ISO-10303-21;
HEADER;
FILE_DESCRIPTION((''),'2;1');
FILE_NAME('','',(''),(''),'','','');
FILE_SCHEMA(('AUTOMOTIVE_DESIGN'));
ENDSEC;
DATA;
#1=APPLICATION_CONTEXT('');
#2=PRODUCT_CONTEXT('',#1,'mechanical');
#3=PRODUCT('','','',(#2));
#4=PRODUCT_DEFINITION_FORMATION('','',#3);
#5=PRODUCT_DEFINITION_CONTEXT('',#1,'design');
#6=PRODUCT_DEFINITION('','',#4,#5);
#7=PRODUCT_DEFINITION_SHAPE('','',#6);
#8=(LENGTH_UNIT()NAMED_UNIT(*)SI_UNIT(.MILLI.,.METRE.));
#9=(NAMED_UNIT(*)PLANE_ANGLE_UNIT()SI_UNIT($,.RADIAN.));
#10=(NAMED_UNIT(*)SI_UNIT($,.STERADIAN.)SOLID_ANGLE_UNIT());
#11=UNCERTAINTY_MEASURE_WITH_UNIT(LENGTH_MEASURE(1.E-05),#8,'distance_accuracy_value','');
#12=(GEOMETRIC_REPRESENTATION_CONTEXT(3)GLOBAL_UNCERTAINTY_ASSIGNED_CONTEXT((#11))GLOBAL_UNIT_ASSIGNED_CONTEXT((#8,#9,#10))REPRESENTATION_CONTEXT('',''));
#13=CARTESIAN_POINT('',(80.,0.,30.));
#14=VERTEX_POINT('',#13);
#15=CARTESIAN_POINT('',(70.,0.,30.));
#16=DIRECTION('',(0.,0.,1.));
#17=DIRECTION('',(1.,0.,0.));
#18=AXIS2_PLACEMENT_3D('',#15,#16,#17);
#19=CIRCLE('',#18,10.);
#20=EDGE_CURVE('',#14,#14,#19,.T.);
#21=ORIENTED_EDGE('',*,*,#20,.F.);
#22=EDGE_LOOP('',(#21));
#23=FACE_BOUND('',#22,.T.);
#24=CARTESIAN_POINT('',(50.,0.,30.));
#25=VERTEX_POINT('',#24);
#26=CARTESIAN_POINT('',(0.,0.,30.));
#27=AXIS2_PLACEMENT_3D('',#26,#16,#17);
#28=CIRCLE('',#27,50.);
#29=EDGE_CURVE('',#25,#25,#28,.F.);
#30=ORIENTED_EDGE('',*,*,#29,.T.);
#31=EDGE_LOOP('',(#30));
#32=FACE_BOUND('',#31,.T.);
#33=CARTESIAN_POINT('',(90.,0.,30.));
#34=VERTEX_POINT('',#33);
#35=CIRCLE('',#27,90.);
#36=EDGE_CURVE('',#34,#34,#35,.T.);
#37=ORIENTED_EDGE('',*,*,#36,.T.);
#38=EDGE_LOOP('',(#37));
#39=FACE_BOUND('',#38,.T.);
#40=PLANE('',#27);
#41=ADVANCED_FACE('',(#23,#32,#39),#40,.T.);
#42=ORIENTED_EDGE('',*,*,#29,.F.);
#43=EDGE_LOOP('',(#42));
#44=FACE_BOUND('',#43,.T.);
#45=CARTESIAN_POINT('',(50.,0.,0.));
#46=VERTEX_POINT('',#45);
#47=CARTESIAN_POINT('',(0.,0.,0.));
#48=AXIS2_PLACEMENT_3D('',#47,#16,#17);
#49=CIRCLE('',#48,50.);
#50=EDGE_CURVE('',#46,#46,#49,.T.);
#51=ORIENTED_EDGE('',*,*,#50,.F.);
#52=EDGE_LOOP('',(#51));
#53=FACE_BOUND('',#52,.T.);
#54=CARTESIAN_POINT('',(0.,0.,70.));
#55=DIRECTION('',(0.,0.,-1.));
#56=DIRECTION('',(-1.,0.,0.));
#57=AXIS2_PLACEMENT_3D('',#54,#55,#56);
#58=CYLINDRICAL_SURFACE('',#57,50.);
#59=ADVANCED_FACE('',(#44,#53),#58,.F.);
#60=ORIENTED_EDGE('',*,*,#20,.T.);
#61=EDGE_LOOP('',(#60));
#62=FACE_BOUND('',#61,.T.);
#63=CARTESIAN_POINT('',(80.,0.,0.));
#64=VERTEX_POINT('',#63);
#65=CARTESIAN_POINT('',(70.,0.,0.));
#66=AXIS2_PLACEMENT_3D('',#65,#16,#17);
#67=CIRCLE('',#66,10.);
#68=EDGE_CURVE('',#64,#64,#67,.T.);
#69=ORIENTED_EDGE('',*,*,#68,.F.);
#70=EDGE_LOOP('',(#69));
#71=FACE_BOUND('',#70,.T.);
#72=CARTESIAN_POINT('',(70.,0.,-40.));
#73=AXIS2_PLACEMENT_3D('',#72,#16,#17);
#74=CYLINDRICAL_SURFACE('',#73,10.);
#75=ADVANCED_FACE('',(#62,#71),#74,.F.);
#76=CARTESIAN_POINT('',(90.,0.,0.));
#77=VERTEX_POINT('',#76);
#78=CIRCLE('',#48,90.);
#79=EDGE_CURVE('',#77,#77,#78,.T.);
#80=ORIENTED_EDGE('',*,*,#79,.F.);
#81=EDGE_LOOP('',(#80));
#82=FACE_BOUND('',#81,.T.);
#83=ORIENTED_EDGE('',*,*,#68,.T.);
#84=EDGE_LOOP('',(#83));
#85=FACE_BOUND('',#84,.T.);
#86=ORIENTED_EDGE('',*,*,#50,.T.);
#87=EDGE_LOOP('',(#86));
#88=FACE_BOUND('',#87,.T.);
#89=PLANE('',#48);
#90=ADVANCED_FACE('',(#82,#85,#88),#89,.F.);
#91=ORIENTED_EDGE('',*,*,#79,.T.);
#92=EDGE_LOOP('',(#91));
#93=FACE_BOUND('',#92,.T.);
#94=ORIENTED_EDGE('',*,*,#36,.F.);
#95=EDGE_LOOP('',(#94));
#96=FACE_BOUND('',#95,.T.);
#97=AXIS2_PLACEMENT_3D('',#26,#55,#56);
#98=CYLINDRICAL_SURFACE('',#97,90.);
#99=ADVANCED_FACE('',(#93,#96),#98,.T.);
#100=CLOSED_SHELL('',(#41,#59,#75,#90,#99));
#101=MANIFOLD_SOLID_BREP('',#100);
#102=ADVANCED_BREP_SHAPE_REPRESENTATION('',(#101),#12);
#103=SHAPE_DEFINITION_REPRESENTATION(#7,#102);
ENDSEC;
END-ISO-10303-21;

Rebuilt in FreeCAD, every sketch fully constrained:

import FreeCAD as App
import Part
import Sketcher

V = App.Vector

doc = App.newDocument("Part")
params = doc.addObject("Spreadsheet::Sheet", "Params")
for row, (alias, value) in enumerate([
    ("sketch1_diameter", "180 mm"),
    ("pad1_length", "30 mm"),
    ("sketch2_diameter", "100 mm"),
    ("pocket1_length", "70 mm"),
    ("sketch3_diameter", "20 mm"),
    ("pocket2_length", "70 mm"),
], start=1):
    params.set(f"A{row}", alias)
    params.set(f"B{row}", "=" + value)
    params.setAlias(f"B{row}", alias)

body = doc.addObject("PartDesign::Body", "Body")

# Sketch on XY plane
sketch1 = body.newObject("Sketcher::SketchObject", "Sketch")
sketch1.AttachmentSupport = (doc.getObject("XY_Plane"), [""])
sketch1.MapMode = "FlatFace"
sketch1.addGeometry(Part.Circle(V(0, 0, 0), V(0, 0, 1), 90), False)
sketch1.addConstraint([
    Sketcher.Constraint("Coincident", 0, 3, -1, 1),
    Sketcher.Constraint("Diameter", 0, 180.0),
])
sketch1.setExpression("Constraints[1]", "Params.sketch1_diameter")
pad1 = body.newObject("PartDesign::Pad", "Pad")
pad1.Profile = sketch1
pad1.setExpression("Length", "Params.pad1_length")

# Sketch on XY plane
sketch2 = body.newObject("Sketcher::SketchObject", "Sketch001")
sketch2.AttachmentSupport = (doc.getObject("XY_Plane"), [""])
sketch2.MapMode = "FlatFace"
sketch2.addGeometry(Part.Circle(V(0, 0, 0), V(0, 0, 1), 50), False)
sketch2.addConstraint([
    Sketcher.Constraint("Coincident", 0, 3, -1, 1),
    Sketcher.Constraint("Diameter", 0, 100.0),
])
sketch2.setExpression("Constraints[1]", "Params.sketch2_diameter")
pocket1 = body.newObject("PartDesign::Pocket", "Pocket")
pocket1.Profile = sketch2
pocket1.setExpression("Length", "Params.pocket1_length")
pocket1.Reversed = True

# Sketch on XY plane
sketch3 = body.newObject("Sketcher::SketchObject", "Sketch002")
sketch3.AttachmentSupport = (doc.getObject("XY_Plane"), [""])
sketch3.MapMode = "FlatFace"
sketch3.AttachmentOffset = App.Placement(V(0, 0, 30), App.Rotation())
sketch3.addGeometry(Part.Circle(V(70, 0, 0), V(0, 0, 1), 10), False)
sketch3.addConstraint([
    Sketcher.Constraint("PointOnObject", 0, 3, -1),
    Sketcher.Constraint("Diameter", 0, 20.0),
    Sketcher.Constraint("DistanceX", -1, 1, 0, 3, 70.0),
])
sketch3.setExpression("Constraints[1]", "Params.sketch3_diameter")
pocket2 = body.newObject("PartDesign::Pocket", "Pocket001")
pocket2.Profile = sketch3
pocket2.setExpression("Length", "Params.pocket2_length")

doc.recompute()
